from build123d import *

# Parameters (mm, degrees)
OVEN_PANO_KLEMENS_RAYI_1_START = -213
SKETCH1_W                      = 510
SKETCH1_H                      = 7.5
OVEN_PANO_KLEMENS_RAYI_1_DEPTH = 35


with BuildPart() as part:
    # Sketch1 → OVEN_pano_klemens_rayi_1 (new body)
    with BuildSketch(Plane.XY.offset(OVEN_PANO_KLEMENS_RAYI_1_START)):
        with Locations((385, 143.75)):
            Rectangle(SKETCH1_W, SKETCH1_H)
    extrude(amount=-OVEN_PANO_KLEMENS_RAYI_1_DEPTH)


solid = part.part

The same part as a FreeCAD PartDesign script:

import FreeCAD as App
import Part
import Sketcher

V = App.Vector
Q = App.Units.Quantity

doc = App.newDocument("Part")
body = doc.addObject("PartDesign::Body", "Body")

# Sketch on XY plane
sketch1 = doc.addObject("Sketcher::SketchObject", "Sketch")
body.addObject(sketch1)
sketch1.AttachmentSupport = (doc.XY_Plane, [""])
sketch1.MapMode = "FlatFace"
sketch1.AttachmentOffset = App.Placement(V(0, 0, -213), App.Rotation())
sketch1.addGeometry([
    Part.LineSegment(V(130, 147.5, 0), V(130, 140, 0)),
    Part.LineSegment(V(130, 140, 0), V(640, 140, 0)),
    Part.LineSegment(V(640, 140, 0), V(640, 147.5, 0)),
    Part.LineSegment(V(640, 147.5, 0), V(130, 147.5, 0)),
], False)
sketch1.addConstraint([
    Sketcher.Constraint("Coincident", 0, 2, 1, 1),
    Sketcher.Constraint("Coincident", 1, 2, 2, 1),
    Sketcher.Constraint("Coincident", 2, 2, 3, 1),
    Sketcher.Constraint("Coincident", 3, 2, 0, 1),
    Sketcher.Constraint("Vertical", 0),
    Sketcher.Constraint("Horizontal", 1),
    Sketcher.Constraint("Vertical", 2),
    Sketcher.Constraint("Horizontal", 3),
    Sketcher.Constraint("DistanceX", 1, 1, 1, 2, Q("510 mm")),
    Sketcher.Constraint("DistanceY", 0, 2, 0, 1, Q("7.5 mm")),
    Sketcher.Constraint("DistanceX", -1, 1, 0, 2, Q("130 mm")),
    Sketcher.Constraint("DistanceY", -1, 1, 0, 2, Q("140 mm")),
])
pad1 = doc.addObject("PartDesign::Pad", "Pad")
body.addObject(pad1)
pad1.Profile = sketch1
pad1.Length = 35
pad1.Reversed = True

doc.recompute()
